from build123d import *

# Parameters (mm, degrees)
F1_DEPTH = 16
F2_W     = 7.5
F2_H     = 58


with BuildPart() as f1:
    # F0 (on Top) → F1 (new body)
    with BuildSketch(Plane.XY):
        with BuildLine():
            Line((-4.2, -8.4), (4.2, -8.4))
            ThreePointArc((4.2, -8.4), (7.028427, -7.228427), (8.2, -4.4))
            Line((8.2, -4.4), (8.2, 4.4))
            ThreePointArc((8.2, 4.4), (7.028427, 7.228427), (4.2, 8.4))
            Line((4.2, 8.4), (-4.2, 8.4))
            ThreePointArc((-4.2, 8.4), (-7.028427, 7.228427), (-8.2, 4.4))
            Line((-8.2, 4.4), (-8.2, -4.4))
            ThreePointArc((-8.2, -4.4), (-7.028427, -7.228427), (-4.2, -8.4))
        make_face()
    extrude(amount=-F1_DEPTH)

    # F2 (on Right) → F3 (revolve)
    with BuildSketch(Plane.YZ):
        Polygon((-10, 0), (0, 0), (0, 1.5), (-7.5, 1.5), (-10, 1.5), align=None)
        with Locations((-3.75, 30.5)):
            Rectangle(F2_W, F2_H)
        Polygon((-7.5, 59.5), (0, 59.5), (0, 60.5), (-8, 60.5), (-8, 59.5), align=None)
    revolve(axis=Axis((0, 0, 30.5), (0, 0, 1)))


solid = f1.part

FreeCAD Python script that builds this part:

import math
import FreeCAD as App
import Part
import Sketcher
Q = App.Units.Quantity


def add_polygon(sketch, points):
    """Adds a closed chain of lines whose ends are joined by coincident constraints."""
    first, n = sketch.GeometryCount, len(points)
    for a, b in zip(points, points[1:] + points[:1]):
        sketch.addGeometry(Part.LineSegment(App.Vector(*a, 0), App.Vector(*b, 0)), False)
    for i in range(n):
        sketch.addConstraint(Sketcher.Constraint("Coincident", first + i, 2, first + (i + 1) % n, 1))

doc = App.newDocument("Part")
body = doc.addObject("PartDesign::Body", "Body")

# Sketch on XY plane
sketch1 = body.newObject("Sketcher::SketchObject", "Sketch")
sketch1.AttachmentSupport = (doc.getObject("XY_Plane"), [""])
sketch1.MapMode = "FlatFace"
sketch1.addGeometry([
    Part.LineSegment(App.Vector(-4.2, -8.4, 0), App.Vector(4.2, -8.4, 0)),  # 0
    Part.ArcOfCircle(Part.Circle(App.Vector(4.2, -4.4, 0), App.Vector(0, 0, 1), 4), math.radians(-90), math.radians(0)),  # 1
    Part.LineSegment(App.Vector(8.2, -4.4, 0), App.Vector(8.2, 4.4, 0)),  # 2
    Part.ArcOfCircle(Part.Circle(App.Vector(4.2, 4.4, 0), App.Vector(0, 0, 1), 4), math.radians(0), math.radians(90)),  # 3
    Part.LineSegment(App.Vector(4.2, 8.4, 0), App.Vector(-4.2, 8.4, 0)),  # 4
    Part.ArcOfCircle(Part.Circle(App.Vector(-4.2, 4.4, 0), App.Vector(0, 0, 1), 4), math.radians(90), math.radians(180)),  # 5
    Part.LineSegment(App.Vector(-8.2, 4.4, 0), App.Vector(-8.2, -4.4, 0)),  # 6
    Part.ArcOfCircle(Part.Circle(App.Vector(-4.2, -4.4, 0), App.Vector(0, 0, 1), 4), math.radians(-180), math.radians(-90)),  # 7
], False)
sketch1.addConstraint([
    Sketcher.Constraint("Tangent", 0, 2, 1, 1),
    Sketcher.Constraint("Tangent", 1, 2, 2, 1),
    Sketcher.Constraint("Tangent", 2, 2, 3, 1),
    Sketcher.Constraint("Tangent", 3, 2, 4, 1),
    Sketcher.Constraint("Tangent", 4, 2, 5, 1),
    Sketcher.Constraint("Tangent", 5, 2, 6, 1),
    Sketcher.Constraint("Tangent", 6, 2, 7, 1),
    Sketcher.Constraint("Tangent", 7, 2, 0, 1),
    Sketcher.Constraint("Horizontal", 0),
    Sketcher.Constraint("Vertical", 2),
    Sketcher.Constraint("Horizontal", 4),
    Sketcher.Constraint("Vertical", 6),
    Sketcher.Constraint("Equal", 1, 3),
    Sketcher.Constraint("Equal", 3, 5),
    Sketcher.Constraint("Equal", 5, 7),
    Sketcher.Constraint("Symmetric", 1, 3, 5, 3, -1, 1),
    Sketcher.Constraint("Radius", 1, Q("4 mm")),
    Sketcher.Constraint("DistanceX", 0, 1, 0, 2, Q("8.4 mm")),
    Sketcher.Constraint("DistanceY", 2, 1, 2, 2, Q("8.8 mm")),
])
pad1 = body.newObject("PartDesign::Pad", "Pad")
pad1.Profile = sketch1
pad1.Length = 16
pad1.Reversed = True

# Sketch on YZ plane
sketch2 = body.newObject("Sketcher::SketchObject", "Sketch001")
sketch2.AttachmentSupport = (doc.getObject("YZ_Plane"), [""])
sketch2.MapMode = "FlatFace"
add_polygon(sketch2, [(-10, 0), (0, 0), (0, 60.5), (-8, 60.5), (-8, 59.5), (-7.5, 59.5), (-7.5, 1.5), (-10, 1.5)])  # lines 0-7
sketch2.addConstraint([
    Sketcher.Constraint("Horizontal", 0),
    Sketcher.Constraint("Vertical", 1),
    Sketcher.Constraint("Horizontal", 2),
    Sketcher.Constraint("Vertical", 3),
    Sketcher.Constraint("Horizontal", 4),
    Sketcher.Constraint("Vertical", 5),
    Sketcher.Constraint("Horizontal", 6),
    Sketcher.Constraint("Vertical", 7),
    Sketcher.Constraint("Coincident", 0, 2, -1, 1),
    Sketcher.Constraint("DistanceX", 0, 1, 0, 2, Q("10 mm")),
    Sketcher.Constraint("DistanceX", 2, 2, 2, 1, Q("8 mm")),
    Sketcher.Constraint("DistanceY", 3, 2, 3, 1, Q("1 mm")),
    Sketcher.Constraint("DistanceY", 5, 2, 5, 1, Q("58 mm")),
    Sketcher.Constraint("DistanceX", 4, 1, 4, 2, Q("0.5 mm")),
    Sketcher.Constraint("DistanceY", 1, 1, 1, 2, Q("60.5 mm")),
])
revolution = body.newObject("PartDesign::Revolution", "Revolution")
revolution.Profile = sketch2
revolution.ReferenceAxis = (sketch2, ["V_Axis"])
revolution.Angle = 360

doc.recompute()
